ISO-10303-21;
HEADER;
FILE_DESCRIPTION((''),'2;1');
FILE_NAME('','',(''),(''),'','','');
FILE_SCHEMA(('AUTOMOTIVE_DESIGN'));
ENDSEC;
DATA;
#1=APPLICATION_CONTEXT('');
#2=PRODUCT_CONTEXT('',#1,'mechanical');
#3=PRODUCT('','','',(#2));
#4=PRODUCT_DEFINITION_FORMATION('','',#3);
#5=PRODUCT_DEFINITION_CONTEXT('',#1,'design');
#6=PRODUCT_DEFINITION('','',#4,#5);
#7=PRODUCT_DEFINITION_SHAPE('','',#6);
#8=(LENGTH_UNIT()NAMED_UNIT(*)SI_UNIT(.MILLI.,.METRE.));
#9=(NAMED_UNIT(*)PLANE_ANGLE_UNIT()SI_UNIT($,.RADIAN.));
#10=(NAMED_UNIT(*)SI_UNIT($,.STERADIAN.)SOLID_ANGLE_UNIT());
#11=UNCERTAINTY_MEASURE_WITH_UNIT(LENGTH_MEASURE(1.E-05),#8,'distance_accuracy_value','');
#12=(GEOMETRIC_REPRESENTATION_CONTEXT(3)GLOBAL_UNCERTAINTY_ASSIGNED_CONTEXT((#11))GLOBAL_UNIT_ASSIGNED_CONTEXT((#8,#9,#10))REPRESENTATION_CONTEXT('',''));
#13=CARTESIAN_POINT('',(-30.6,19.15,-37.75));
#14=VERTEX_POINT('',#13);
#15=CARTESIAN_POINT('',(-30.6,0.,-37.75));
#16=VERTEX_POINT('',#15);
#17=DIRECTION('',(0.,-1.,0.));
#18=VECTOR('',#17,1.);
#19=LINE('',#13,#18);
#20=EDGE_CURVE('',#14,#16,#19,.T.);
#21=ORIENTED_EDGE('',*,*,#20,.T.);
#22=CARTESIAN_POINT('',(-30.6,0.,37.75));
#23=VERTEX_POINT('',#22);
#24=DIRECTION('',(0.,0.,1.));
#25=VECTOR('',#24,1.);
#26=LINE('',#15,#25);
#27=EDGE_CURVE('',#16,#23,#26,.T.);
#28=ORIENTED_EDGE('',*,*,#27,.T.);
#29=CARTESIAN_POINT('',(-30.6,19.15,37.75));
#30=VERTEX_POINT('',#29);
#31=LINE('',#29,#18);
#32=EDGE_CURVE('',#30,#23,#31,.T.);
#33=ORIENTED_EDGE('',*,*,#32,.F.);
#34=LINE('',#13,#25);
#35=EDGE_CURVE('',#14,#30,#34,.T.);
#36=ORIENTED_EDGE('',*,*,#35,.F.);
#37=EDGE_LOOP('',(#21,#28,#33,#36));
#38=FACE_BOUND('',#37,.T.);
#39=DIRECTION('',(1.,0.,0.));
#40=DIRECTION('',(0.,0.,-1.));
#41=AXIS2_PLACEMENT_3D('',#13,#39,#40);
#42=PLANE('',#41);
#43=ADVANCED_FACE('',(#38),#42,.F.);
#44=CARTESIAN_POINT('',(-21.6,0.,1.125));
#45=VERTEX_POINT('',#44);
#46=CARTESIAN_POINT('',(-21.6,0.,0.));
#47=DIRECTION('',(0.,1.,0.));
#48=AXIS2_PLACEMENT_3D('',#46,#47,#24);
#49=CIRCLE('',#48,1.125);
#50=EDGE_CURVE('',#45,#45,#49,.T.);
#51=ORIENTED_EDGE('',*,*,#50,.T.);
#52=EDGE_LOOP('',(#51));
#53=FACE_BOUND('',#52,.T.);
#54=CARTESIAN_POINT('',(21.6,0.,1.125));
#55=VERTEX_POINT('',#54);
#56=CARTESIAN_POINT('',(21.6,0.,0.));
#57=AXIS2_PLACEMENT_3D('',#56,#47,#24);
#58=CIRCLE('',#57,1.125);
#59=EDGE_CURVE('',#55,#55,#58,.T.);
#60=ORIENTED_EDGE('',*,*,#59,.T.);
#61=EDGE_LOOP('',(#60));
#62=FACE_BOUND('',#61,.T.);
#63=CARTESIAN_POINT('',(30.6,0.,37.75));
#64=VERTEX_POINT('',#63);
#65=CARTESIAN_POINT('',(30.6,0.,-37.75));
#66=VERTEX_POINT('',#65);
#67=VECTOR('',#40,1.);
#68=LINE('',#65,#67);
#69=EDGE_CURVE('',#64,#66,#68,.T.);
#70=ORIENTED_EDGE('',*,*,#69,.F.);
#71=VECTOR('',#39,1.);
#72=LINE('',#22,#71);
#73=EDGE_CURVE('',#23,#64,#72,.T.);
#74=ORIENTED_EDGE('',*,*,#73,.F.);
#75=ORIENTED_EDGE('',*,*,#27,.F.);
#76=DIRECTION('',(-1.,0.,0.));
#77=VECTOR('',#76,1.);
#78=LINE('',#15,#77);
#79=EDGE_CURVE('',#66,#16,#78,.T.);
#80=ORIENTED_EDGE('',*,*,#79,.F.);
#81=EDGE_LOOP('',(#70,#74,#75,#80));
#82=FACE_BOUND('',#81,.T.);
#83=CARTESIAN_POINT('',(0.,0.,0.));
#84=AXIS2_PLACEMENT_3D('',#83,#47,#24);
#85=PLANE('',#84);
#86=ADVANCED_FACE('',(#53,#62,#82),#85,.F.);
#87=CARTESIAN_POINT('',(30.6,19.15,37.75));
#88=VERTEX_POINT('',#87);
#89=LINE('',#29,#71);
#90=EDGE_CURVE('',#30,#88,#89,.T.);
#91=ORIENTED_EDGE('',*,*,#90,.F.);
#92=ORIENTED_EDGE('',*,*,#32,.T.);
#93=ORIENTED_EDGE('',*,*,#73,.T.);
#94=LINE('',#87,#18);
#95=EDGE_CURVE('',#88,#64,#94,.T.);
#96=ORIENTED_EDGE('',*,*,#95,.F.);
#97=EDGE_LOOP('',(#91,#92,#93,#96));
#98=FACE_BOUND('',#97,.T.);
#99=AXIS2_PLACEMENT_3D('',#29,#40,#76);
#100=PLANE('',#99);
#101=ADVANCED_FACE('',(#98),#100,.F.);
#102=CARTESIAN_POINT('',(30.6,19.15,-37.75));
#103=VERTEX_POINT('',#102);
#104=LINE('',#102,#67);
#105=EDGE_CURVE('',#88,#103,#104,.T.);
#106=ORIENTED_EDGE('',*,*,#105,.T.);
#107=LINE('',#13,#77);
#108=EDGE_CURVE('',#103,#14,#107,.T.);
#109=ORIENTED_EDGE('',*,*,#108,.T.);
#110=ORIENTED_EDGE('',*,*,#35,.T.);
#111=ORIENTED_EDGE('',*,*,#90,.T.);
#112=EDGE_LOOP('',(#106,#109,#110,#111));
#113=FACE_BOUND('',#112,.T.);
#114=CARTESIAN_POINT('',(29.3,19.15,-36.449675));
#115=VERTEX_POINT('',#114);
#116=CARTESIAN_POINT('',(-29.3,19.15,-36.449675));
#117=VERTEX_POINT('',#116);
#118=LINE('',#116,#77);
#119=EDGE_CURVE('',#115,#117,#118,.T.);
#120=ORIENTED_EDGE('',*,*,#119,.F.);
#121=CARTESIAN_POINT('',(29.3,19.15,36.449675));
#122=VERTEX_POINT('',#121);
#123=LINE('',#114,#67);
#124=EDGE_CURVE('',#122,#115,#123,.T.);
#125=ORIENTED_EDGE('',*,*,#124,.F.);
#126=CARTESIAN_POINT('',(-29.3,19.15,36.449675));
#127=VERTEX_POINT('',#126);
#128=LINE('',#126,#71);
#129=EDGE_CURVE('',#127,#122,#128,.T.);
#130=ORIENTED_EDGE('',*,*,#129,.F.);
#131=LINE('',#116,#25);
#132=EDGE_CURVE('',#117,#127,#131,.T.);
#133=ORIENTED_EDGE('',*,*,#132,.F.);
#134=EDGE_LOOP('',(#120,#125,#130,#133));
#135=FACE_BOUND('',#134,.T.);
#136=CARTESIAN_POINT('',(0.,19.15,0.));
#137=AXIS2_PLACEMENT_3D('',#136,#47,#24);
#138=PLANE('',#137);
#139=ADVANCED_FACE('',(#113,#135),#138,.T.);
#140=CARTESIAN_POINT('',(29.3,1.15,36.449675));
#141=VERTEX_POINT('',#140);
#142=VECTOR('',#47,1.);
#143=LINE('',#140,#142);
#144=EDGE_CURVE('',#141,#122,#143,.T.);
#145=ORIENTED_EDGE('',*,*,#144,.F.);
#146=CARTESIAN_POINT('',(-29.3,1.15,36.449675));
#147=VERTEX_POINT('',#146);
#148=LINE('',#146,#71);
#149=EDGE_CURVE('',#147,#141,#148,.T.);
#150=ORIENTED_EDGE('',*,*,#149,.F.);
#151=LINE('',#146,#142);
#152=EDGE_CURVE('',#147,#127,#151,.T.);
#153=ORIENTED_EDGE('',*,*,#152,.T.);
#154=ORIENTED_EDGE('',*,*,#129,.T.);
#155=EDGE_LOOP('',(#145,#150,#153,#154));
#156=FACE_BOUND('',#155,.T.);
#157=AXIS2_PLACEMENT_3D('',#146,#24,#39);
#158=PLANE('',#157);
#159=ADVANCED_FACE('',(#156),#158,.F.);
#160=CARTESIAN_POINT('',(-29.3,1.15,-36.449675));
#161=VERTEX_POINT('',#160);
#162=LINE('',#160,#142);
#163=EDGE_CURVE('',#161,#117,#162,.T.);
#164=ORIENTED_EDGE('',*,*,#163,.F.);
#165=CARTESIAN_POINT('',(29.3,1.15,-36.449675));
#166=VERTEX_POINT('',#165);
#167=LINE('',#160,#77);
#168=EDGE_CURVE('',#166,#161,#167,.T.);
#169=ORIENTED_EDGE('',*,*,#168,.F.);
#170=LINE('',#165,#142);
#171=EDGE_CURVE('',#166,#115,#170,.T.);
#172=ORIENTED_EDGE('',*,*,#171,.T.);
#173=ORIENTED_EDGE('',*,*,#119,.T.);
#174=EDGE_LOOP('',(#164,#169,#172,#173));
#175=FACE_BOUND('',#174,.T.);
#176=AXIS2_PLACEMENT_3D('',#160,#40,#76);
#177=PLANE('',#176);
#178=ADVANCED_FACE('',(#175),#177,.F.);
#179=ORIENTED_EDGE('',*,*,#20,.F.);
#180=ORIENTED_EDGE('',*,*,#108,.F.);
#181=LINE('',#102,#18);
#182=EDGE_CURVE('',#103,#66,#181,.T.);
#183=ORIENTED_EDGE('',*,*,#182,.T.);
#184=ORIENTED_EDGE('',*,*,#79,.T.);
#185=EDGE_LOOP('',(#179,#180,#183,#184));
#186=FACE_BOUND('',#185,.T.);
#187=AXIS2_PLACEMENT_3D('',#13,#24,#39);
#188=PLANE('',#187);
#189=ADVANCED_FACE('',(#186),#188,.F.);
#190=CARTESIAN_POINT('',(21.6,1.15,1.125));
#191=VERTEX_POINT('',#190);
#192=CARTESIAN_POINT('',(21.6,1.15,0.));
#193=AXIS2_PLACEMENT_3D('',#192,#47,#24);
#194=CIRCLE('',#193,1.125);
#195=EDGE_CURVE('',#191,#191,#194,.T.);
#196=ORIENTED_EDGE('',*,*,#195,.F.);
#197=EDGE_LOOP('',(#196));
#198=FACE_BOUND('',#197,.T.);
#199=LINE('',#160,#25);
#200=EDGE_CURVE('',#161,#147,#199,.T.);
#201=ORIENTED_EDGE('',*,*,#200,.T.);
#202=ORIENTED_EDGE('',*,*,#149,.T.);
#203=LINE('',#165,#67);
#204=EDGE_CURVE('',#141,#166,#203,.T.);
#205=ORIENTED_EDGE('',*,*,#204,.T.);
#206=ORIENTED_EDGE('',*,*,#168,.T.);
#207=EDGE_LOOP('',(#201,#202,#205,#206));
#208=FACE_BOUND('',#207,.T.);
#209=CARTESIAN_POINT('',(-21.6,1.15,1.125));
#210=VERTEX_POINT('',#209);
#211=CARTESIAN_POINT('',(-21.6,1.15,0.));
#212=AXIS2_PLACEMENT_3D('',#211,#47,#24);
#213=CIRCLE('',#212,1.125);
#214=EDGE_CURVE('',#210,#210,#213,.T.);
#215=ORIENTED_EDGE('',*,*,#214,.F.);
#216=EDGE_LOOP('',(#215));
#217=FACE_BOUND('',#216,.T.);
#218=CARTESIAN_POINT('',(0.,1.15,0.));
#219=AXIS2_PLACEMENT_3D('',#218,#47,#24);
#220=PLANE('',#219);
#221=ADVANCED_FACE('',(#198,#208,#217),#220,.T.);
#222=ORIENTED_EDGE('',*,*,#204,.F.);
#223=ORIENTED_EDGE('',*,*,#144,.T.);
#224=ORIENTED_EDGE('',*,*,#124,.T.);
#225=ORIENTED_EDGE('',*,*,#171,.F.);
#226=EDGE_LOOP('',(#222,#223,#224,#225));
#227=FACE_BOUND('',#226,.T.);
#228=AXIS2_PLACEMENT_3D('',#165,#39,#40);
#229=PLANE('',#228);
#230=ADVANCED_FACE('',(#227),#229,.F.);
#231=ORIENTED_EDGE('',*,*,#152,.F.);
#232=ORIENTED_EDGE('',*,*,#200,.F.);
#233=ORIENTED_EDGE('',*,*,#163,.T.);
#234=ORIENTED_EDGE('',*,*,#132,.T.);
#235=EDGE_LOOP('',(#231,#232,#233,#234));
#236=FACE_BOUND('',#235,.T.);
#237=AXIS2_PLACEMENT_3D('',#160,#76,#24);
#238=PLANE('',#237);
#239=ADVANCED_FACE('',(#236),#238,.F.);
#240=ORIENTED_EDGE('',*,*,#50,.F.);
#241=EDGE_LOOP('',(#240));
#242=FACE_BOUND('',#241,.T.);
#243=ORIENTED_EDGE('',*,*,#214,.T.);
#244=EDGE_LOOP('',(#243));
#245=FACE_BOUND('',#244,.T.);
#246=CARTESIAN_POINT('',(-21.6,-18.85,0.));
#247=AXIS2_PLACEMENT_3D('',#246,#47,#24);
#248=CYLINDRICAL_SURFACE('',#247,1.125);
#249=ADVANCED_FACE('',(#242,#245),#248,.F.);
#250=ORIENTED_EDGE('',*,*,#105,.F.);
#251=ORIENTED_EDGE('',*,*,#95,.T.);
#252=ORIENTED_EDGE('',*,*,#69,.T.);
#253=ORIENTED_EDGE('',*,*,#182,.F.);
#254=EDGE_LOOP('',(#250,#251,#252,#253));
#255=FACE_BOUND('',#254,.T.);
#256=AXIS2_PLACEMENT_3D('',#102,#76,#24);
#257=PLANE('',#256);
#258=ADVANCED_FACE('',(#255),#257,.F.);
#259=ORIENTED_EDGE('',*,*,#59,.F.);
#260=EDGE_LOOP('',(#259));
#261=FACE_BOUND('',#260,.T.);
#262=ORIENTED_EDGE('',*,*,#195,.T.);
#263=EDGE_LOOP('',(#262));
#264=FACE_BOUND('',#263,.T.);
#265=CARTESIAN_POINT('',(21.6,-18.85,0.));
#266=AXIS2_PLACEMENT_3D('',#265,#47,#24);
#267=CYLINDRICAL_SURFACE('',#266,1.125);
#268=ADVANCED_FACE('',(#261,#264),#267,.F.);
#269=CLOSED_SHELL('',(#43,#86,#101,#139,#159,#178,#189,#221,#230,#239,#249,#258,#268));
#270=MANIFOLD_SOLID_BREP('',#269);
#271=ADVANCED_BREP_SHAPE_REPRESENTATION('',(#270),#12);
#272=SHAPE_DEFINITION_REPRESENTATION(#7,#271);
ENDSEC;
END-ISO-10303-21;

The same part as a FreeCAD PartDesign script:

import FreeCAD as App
import Part
import Sketcher
Q = App.Units.Quantity

doc = App.newDocument("Part")
body = doc.addObject("PartDesign::Body", "Body")

sketch1 = body.newObject("Sketcher::SketchObject", "Sketch")
sketch1.AttachmentSupport = (doc.getObject("XZ_Plane"), [""])
sketch1.MapMode = "FlatFace"
sketch1.addGeometry([
    Part.LineSegment(App.Vector(-31, -38, 0), App.Vector(-31, 38, 0)),
    Part.LineSegment(App.Vector(-31, 38, 0), App.Vector(31, 38, 0)),
    Part.LineSegment(App.Vector(31, 38, 0), App.Vector(31, -38, 0)),
    Part.LineSegment(App.Vector(31, -38, 0), App.Vector(-31, -38, 0)),
], False)
sketch1.addConstraint([
    Sketcher.Constraint("Coincident", 0, 2, 1, 1),
    Sketcher.Constraint("Coincident", 1, 2, 2, 1),
    Sketcher.Constraint("Coincident", 2, 2, 3, 1),
    Sketcher.Constraint("Coincident", 3, 2, 0, 1),
    Sketcher.Constraint("Vertical", 0),
    Sketcher.Constraint("Horizontal", 1),
    Sketcher.Constraint("Vertical", 2),
    Sketcher.Constraint("Horizontal", 3),
    Sketcher.Constraint("Symmetric", 0, 2, 2, 2, -1, 1),
    Sketcher.Constraint("DistanceX", 1, 1, 1, 2, Q("61.2 mm")),
    Sketcher.Constraint("DistanceY", 0, 1, 0, 2, Q("75.5 mm")),
])
pad1 = body.newObject("PartDesign::Pad", "Pad")
pad1.Profile = sketch1
pad1.Length = 19.15
pad1.Reversed = True

sketch2 = body.newObject("Sketcher::SketchObject", "Sketch001")
sketch2.AttachmentSupport = (doc.getObject("XZ_Plane"), [""])
sketch2.MapMode = "FlatFace"
sketch2.AttachmentOffset = App.Placement(App.Vector(0, 0, -19.15), App.Rotation())
sketch2.addGeometry([
    Part.LineSegment(App.Vector(-29, -36, 0), App.Vector(-29, 36, 0)),
    Part.LineSegment(App.Vector(-29, 36, 0), App.Vector(29, 36, 0)),
    Part.LineSegment(App.Vector(29, 36, 0), App.Vector(29, -36, 0)),
    Part.LineSegment(App.Vector(29, -36, 0), App.Vector(-29, -36, 0)),
], False)
sketch2.addConstraint([
    Sketcher.Constraint("Coincident", 0, 2, 1, 1),
    Sketcher.Constraint("Coincident", 1, 2, 2, 1),
    Sketcher.Constraint("Coincident", 2, 2, 3, 1),
    Sketcher.Constraint("Coincident", 3, 2, 0, 1),
    Sketcher.Constraint("Vertical", 0),
    Sketcher.Constraint("Horizontal", 1),
    Sketcher.Constraint("Vertical", 2),
    Sketcher.Constraint("Horizontal", 3),
    Sketcher.Constraint("Symmetric", 0, 2, 2, 2, -1, 1),
    Sketcher.Constraint("DistanceX", 1, 1, 1, 2, Q("58.6 mm")),
    Sketcher.Constraint("DistanceY", 0, 1, 0, 2, Q("72.899349 mm")),
])
pocket1 = body.newObject("PartDesign::Pocket", "Pocket")
pocket1.Profile = sketch2
pocket1.Length = 18
pocket1.Reversed = True

sketch3 = body.newObject("Sketcher::SketchObject", "Sketch002")
sketch3.AttachmentSupport = (doc.getObject("XZ_Plane"), [""])
sketch3.MapMode = "FlatFace"
sketch3.AttachmentOffset = App.Placement(App.Vector(0, 0, -1.15), App.Rotation())
sketch3.addGeometry([
    Part.Circle(App.Vector(-21.6, 0, 0), App.Vector(0, 0, 1), 1.1),
    Part.Circle(App.Vector(21.6, 0, 0), App.Vector(0, 0, 1), 1.1),
], False)
sketch3.addConstraint([
    Sketcher.Constraint("Equal", 0, 1),
    Sketcher.Constraint("Symmetric", 0, 3, 1, 3, -1, 1),
    Sketcher.Constraint("PointOnObject", 0, 3, -1),
    Sketcher.Constraint("Diameter", 0, Q("2.25 mm")),
    Sketcher.Constraint("DistanceX", 0, 3, -1, 1, Q("21.6 mm")),
])
pocket2 = body.newObject("PartDesign::Pocket", "Pocket001")
pocket2.Profile = sketch3
pocket2.Length = 20
pocket2.Reversed = True

doc.recompute()
